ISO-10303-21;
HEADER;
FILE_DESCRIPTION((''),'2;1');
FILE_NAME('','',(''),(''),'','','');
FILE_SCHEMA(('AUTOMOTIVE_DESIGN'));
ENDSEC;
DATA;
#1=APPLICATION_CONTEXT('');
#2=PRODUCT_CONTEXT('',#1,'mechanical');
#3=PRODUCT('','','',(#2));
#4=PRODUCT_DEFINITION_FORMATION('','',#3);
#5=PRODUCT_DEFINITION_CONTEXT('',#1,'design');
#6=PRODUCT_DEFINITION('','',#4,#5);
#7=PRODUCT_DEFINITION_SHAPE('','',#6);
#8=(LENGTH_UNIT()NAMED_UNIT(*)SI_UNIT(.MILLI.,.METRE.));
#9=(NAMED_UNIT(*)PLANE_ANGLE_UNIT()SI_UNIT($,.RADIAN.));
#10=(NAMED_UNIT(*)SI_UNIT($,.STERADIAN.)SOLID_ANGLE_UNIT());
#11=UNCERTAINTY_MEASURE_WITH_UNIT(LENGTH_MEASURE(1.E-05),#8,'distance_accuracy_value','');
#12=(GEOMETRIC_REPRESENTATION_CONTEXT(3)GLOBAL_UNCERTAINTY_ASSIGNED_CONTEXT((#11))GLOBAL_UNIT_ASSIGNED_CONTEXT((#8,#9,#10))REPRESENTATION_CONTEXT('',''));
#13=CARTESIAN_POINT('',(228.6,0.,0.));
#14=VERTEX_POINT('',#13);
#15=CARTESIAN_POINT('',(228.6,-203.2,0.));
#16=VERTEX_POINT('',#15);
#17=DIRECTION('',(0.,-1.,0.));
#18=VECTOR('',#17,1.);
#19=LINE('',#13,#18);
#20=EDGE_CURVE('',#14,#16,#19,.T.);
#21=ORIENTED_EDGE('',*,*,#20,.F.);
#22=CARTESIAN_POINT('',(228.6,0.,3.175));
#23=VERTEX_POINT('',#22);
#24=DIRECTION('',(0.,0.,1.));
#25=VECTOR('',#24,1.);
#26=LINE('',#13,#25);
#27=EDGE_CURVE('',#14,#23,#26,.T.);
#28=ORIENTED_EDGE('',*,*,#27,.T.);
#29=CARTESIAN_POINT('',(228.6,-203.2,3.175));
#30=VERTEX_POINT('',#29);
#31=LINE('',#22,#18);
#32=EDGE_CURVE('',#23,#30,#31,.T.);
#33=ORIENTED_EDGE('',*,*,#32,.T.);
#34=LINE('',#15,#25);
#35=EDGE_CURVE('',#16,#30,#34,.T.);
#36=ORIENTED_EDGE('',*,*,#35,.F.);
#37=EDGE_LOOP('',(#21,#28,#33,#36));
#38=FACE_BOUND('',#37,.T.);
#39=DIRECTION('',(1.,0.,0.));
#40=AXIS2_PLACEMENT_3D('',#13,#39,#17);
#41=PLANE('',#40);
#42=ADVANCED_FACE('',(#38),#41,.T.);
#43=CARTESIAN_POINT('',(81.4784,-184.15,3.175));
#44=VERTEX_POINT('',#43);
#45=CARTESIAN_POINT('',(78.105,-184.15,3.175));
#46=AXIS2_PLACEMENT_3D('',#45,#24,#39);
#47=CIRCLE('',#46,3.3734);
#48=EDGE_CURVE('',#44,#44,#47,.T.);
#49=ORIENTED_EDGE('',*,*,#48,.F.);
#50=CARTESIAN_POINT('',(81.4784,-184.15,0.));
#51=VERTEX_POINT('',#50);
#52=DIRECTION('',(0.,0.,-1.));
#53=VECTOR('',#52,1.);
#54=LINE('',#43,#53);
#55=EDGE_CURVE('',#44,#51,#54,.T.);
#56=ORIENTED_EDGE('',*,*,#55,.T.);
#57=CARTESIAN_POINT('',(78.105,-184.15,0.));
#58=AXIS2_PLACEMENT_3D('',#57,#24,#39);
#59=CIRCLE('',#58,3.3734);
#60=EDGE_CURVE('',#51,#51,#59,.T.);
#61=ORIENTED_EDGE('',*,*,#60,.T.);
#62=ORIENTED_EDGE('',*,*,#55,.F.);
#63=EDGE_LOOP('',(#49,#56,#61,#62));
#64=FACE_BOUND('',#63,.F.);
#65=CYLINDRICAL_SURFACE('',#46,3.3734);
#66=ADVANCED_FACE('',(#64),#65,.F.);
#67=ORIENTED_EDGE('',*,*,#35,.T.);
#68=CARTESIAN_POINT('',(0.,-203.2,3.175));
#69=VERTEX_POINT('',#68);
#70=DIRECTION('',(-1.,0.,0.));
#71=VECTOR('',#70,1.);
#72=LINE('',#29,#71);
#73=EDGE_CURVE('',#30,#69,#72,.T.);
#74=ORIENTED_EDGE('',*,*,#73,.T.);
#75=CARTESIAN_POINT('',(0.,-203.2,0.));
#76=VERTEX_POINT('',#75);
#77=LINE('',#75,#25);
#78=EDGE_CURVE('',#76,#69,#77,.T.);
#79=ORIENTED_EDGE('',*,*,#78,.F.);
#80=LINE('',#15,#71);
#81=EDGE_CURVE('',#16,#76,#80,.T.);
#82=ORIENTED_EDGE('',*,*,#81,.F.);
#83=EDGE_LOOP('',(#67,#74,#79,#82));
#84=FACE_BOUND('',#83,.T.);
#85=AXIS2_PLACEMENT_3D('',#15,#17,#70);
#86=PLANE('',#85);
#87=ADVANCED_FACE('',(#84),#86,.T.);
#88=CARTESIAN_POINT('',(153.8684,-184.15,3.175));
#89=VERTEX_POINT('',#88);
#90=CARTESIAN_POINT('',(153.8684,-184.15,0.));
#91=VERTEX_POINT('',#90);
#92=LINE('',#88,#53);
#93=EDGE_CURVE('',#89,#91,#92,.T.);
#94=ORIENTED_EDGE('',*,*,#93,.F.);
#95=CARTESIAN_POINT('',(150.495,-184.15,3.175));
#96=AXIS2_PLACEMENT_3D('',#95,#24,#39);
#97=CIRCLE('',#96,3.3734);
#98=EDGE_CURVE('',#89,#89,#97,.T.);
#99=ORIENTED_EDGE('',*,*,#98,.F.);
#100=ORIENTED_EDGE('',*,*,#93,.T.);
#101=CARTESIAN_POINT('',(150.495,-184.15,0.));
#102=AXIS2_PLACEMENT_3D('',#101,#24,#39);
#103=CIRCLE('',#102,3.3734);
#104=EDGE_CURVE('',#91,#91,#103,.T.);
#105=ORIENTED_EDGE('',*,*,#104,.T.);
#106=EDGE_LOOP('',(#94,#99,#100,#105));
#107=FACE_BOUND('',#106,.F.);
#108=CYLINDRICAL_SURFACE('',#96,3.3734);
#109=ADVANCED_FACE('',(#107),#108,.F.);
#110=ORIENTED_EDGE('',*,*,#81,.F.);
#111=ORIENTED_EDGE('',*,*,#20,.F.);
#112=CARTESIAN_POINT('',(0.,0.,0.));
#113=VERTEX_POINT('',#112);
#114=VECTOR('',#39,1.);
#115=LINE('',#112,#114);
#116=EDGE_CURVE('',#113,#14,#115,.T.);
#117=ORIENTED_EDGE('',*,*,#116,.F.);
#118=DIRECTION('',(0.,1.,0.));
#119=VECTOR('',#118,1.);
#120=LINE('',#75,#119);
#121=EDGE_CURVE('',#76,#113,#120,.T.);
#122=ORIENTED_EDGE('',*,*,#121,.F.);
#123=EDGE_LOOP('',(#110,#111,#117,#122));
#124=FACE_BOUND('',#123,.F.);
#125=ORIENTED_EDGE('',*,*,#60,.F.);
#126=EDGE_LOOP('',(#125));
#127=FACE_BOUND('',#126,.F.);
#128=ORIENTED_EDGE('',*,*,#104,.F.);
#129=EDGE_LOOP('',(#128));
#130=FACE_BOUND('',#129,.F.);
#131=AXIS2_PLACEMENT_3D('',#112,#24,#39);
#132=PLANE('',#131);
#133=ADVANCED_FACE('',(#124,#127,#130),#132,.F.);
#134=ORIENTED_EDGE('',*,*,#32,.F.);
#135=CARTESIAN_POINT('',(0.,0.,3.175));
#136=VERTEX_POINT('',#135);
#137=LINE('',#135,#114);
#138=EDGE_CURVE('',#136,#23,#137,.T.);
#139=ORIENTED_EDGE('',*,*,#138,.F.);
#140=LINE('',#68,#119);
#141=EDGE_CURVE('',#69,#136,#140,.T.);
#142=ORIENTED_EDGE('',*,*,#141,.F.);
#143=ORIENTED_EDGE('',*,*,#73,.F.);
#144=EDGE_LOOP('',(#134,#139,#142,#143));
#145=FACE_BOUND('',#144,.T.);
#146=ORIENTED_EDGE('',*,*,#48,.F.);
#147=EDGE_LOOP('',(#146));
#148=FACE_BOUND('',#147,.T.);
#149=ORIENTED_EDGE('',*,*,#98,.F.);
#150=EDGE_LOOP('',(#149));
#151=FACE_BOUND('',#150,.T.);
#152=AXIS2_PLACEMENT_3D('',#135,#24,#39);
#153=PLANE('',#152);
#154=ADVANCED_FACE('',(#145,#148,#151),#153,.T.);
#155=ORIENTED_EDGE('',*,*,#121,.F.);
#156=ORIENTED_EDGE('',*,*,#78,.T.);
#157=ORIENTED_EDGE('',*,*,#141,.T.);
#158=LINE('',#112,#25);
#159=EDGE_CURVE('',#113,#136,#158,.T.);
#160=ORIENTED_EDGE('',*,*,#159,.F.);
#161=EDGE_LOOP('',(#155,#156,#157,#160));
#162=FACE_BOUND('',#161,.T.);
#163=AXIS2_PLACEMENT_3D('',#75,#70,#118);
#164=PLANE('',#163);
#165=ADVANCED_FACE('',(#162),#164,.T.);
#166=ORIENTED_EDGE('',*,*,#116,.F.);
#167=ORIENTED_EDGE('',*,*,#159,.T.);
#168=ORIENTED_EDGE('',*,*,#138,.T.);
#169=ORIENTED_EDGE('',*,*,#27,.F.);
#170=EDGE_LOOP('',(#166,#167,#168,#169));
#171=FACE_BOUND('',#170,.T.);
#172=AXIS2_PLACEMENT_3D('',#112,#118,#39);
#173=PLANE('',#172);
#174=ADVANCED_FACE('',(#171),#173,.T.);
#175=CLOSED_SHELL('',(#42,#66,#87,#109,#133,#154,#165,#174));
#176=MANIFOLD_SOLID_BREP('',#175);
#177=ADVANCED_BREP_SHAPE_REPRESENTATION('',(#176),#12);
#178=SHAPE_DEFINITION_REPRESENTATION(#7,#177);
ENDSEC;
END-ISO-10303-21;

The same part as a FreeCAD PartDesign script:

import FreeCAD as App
import Part
import Sketcher
from FreeCAD import Vector
Q = App.Units.Quantity


def add_polygon(sketch, points):
    """Adds a closed chain of lines whose ends are joined by coincident constraints."""
    first, n = sketch.GeometryCount, len(points)
    for a, b in zip(points, points[1:] + points[:1]):
        sketch.addGeometry(Part.LineSegment(App.Vector(*a, 0), App.Vector(*b, 0)), False)
    for i in range(n):
        sketch.addConstraint(Sketcher.Constraint("Coincident", first + i, 2, first + (i + 1) % n, 1))

doc = App.newDocument("Part")
body = doc.addObject("PartDesign::Body", "Body")

# Sketch on XY plane
sketch1 = body.newObject("Sketcher::SketchObject", "Sketch")
sketch1.AttachmentSupport = (doc.getObject("XY_Plane"), [""])
sketch1.MapMode = "FlatFace"
add_polygon(sketch1, [(229, 0), (0, 0), (0, -203), (229, -203)])  # lines 0-3
sketch1.addConstraint([
    Sketcher.Constraint("Horizontal", 0),
    Sketcher.Constraint("Vertical", 1),
    Sketcher.Constraint("Horizontal", 2),
    Sketcher.Constraint("Vertical", 3),
    Sketcher.Constraint("Coincident", 0, 2, -1, 1),
    Sketcher.Constraint("DistanceX", 0, 2, 0, 1, Q("9 in")),
    Sketcher.Constraint("DistanceY", 1, 2, 1, 1, Q("8 in")),
])
pad1 = body.newObject("PartDesign::Pad", "Pad")
pad1.Profile = sketch1
pad1.Length = Q("0.125 in")

# Sketch on XY plane
sketch2 = body.newObject("Sketcher::SketchObject", "Sketch001")
sketch2.AttachmentSupport = (doc.getObject("XY_Plane"), [""])
sketch2.MapMode = "FlatFace"
sketch2.AttachmentOffset = App.Placement(Vector(0, 0, 0.125 * 25.4), App.Rotation())
sketch2.addGeometry([
    Part.Circle(Vector(78.1, -184.2, 0), Vector(0, 0, 1), 3.4),
    Part.Circle(Vector(150.5, -184.2, 0), Vector(0, 0, 1), 3.4),
], False)
sketch2.addConstraint([
    Sketcher.Constraint("Equal", 0, 1),
    Sketcher.Constraint("Horizontal", 0, 3, 1, 3),
    Sketcher.Constraint("Diameter", 0, Q("0.265622 in")),
    Sketcher.Constraint("DistanceX", 0, 3, 1, 3, Q("2.85 in")),
    Sketcher.Constraint("DistanceX", -1, 1, 0, 3, Q("3.075 in")),
    Sketcher.Constraint("DistanceY", 0, 3, -1, 1, Q("7.25 in")),
])
pocket1 = body.newObject("PartDesign::Pocket", "Pocket")
pocket1.Profile = sketch2
pocket1.Length = Q("0.125 in")

doc.recompute()
